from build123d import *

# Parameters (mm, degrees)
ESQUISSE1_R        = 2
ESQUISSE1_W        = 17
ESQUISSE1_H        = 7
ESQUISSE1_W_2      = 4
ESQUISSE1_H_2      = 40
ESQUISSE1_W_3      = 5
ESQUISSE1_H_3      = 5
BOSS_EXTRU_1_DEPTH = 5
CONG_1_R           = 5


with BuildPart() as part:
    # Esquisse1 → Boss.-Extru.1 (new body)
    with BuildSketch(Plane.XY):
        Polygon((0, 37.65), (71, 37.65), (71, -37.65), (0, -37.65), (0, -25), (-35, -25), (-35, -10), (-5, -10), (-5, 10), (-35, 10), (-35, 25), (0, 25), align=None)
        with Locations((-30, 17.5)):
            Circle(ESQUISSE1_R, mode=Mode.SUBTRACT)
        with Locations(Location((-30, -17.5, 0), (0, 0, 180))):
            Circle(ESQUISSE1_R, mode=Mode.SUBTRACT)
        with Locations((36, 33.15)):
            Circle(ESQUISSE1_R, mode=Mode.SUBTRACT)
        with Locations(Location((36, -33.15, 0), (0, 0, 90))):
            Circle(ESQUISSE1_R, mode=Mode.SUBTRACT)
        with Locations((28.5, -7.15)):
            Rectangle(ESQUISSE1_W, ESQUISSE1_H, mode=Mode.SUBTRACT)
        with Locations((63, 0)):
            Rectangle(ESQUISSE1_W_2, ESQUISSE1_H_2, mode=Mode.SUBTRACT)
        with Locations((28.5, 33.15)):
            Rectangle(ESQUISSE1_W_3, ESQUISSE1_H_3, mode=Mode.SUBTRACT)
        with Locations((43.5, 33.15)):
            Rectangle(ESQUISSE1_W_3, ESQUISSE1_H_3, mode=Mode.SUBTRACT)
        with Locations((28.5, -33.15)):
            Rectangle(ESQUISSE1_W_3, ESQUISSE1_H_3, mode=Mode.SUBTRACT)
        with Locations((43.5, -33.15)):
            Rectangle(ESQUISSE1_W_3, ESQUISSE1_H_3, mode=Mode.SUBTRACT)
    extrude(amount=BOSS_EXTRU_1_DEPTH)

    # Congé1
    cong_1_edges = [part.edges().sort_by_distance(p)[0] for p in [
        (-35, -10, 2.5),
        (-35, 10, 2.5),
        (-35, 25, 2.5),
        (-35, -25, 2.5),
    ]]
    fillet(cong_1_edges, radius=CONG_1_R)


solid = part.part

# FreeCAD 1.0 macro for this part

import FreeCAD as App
import Part
import Sketcher
Q = App.Units.Quantity


def edges_at(feature, points):
    """Names of the edges that pass closest to the given points."""
    edges = feature.Shape.Edges
    near = lambda p: min(range(len(edges)), key=lambda i: edges[i].distToShape(Part.Vertex(*p))[0])
    return sorted({f"Edge{near(p) + 1}" for p in points})

doc = App.newDocument("Part")
body = doc.addObject("PartDesign::Body", "Body")

# Sketch on XY plane
sketch1 = body.newObject("Sketcher::SketchObject", "Sketch")
sketch1.AttachmentSupport = (doc.getObject("XY_Plane"), [""])
sketch1.MapMode = "FlatFace"
sketch1.addGeometry([
    Part.LineSegment(App.Vector(71, 37.6, 0), App.Vector(0, 37.6, 0)),  # 0
    Part.LineSegment(App.Vector(0, 37.6, 0), App.Vector(0, 25, 0)),  # 1
    Part.LineSegment(App.Vector(0, 25, 0), App.Vector(-35, 25, 0)),  # 2
    Part.LineSegment(App.Vector(-35, 25, 0), App.Vector(-35, 10, 0)),  # 3
    Part.LineSegment(App.Vector(-35, 10, 0), App.Vector(-5, 10, 0)),  # 4
    Part.LineSegment(App.Vector(-5, 10, 0), App.Vector(-5, -10, 0)),  # 5
    Part.LineSegment(App.Vector(-5, -10, 0), App.Vector(-35, -10, 0)),  # 6
    Part.LineSegment(App.Vector(-35, -10, 0), App.Vector(-35, -25, 0)),  # 7
    Part.LineSegment(App.Vector(-35, -25, 0), App.Vector(0, -25, 0)),  # 8
    Part.LineSegment(App.Vector(0, -25, 0), App.Vector(0, -37.6, 0)),  # 9
    Part.LineSegment(App.Vector(0, -37.6, 0), App.Vector(71, -37.6, 0)),  # 10
    Part.LineSegment(App.Vector(71, -37.6, 0), App.Vector(71, 37.6, 0)),  # 11
    Part.LineSegment(App.Vector(41, -35.6, 0), App.Vector(41, -30.6, 0)),  # 12
    Part.LineSegment(App.Vector(41, -30.6, 0), App.Vector(46, -30.6, 0)),  # 13
    Part.LineSegment(App.Vector(46, -30.6, 0), App.Vector(46, -35.6, 0)),  # 14
    Part.LineSegment(App.Vector(46, -35.6, 0), App.Vector(41, -35.6, 0)),  # 15
    Part.Circle(App.Vector(36, -33.1, 0), App.Vector(0, 0, 1), 2),  # 16
    Part.LineSegment(App.Vector(26, -35.6, 0), App.Vector(26, -30.6, 0)),  # 17
    Part.LineSegment(App.Vector(26, -30.6, 0), App.Vector(31, -30.6, 0)),  # 18
    Part.LineSegment(App.Vector(31, -30.6, 0), App.Vector(31, -35.6, 0)),  # 19
    Part.LineSegment(App.Vector(31, -35.6, 0), App.Vector(26, -35.6, 0)),  # 20
    Part.LineSegment(App.Vector(20, -10.7, 0), App.Vector(20, -3.6, 0)),  # 21
    Part.LineSegment(App.Vector(20, -3.6, 0), App.Vector(37, -3.6, 0)),  # 22
    Part.LineSegment(App.Vector(37, -3.6, 0), App.Vector(37, -10.7, 0)),  # 23
    Part.LineSegment(App.Vector(37, -10.7, 0), App.Vector(20, -10.7, 0)),  # 24
    Part.Circle(App.Vector(-30, -17.5, 0), App.Vector(0, 0, 1), 2),  # 25
    Part.LineSegment(App.Vector(61, -20, 0), App.Vector(61, 20, 0)),  # 26
    Part.LineSegment(App.Vector(61, 20, 0), App.Vector(65, 20, 0)),  # 27
    Part.LineSegment(App.Vector(65, 20, 0), App.Vector(65, -20, 0)),  # 28
    Part.LineSegment(App.Vector(65, -20, 0), App.Vector(61, -20, 0)),  # 29
    Part.LineSegment(App.Vector(41, 30.6, 0), App.Vector(41, 35.6, 0)),  # 30
    Part.LineSegment(App.Vector(41, 35.6, 0), App.Vector(46, 35.6, 0)),  # 31
    Part.LineSegment(App.Vector(46, 35.6, 0), App.Vector(46, 30.6, 0)),  # 32
    Part.LineSegment(App.Vector(46, 30.6, 0), App.Vector(41, 30.6, 0)),  # 33
    Part.Circle(App.Vector(36, 33.1, 0), App.Vector(0, 0, 1), 2),  # 34
    Part.LineSegment(App.Vector(26, 30.6, 0), App.Vector(26, 35.6, 0)),  # 35
    Part.LineSegment(App.Vector(26, 35.6, 0), App.Vector(31, 35.6, 0)),  # 36
    Part.LineSegment(App.Vector(31, 35.6, 0), App.Vector(31, 30.6, 0)),  # 37
    Part.LineSegment(App.Vector(31, 30.6, 0), App.Vector(26, 30.6, 0)),  # 38
    Part.Circle(App.Vector(-30, 17.5, 0), App.Vector(0, 0, 1), 2),  # 39
], False)
sketch1.addConstraint([
    Sketcher.Constraint("Coincident", 0, 2, 1, 1),
    Sketcher.Constraint("Coincident", 1, 2, 2, 1),
    Sketcher.Constraint("Coincident", 2, 2, 3, 1),
    Sketcher.Constraint("Coincident", 3, 2, 4, 1),
    Sketcher.Constraint("Coincident", 4, 2, 5, 1),
    Sketcher.Constraint("Coincident", 5, 2, 6, 1),
    Sketcher.Constraint("Coincident", 6, 2, 7, 1),
    Sketcher.Constraint("Coincident", 7, 2, 8, 1),
    Sketcher.Constraint("Coincident", 8, 2, 9, 1),
    Sketcher.Constraint("Coincident", 9, 2, 10, 1),
    Sketcher.Constraint("Coincident", 10, 2, 11, 1),
    Sketcher.Constraint("Coincident", 11, 2, 0, 1),
    Sketcher.Constraint("Coincident", 12, 2, 13, 1),
    Sketcher.Constraint("Coincident", 13, 2, 14, 1),
    Sketcher.Constraint("Coincident", 14, 2, 15, 1),
    Sketcher.Constraint("Coincident", 15, 2, 12, 1),
    Sketcher.Constraint("Coincident", 17, 2, 18, 1),
    Sketcher.Constraint("Coincident", 18, 2, 19, 1),
    Sketcher.Constraint("Coincident", 19, 2, 20, 1),
    Sketcher.Constraint("Coincident", 20, 2, 17, 1),
    Sketcher.Constraint("Coincident", 21, 2, 22, 1),
    Sketcher.Constraint("Coincident", 22, 2, 23, 1),
    Sketcher.Constraint("Coincident", 23, 2, 24, 1),
    Sketcher.Constraint("Coincident", 24, 2, 21, 1),
    Sketcher.Constraint("Coincident", 26, 2, 27, 1),
    Sketcher.Constraint("Coincident", 27, 2, 28, 1),
    Sketcher.Constraint("Coincident", 28, 2, 29, 1),
    Sketcher.Constraint("Coincident", 29, 2, 26, 1),
    Sketcher.Constraint("Coincident", 30, 2, 31, 1),
    Sketcher.Constraint("Coincident", 31, 2, 32, 1),
    Sketcher.Constraint("Coincident", 32, 2, 33, 1),
    Sketcher.Constraint("Coincident", 33, 2, 30, 1),
    Sketcher.Constraint("Coincident", 35, 2, 36, 1),
    Sketcher.Constraint("Coincident", 36, 2, 37, 1),
    Sketcher.Constraint("Coincident", 37, 2, 38, 1),
    Sketcher.Constraint("Coincident", 38, 2, 35, 1),
    Sketcher.Constraint("Horizontal", 0),
    Sketcher.Constraint("Vertical", 1),
    Sketcher.Constraint("Horizontal", 2),
    Sketcher.Constraint("Vertical", 3),
    Sketcher.Constraint("Horizontal", 4),
    Sketcher.Constraint("Vertical", 5),
    Sketcher.Constraint("Horizontal", 6),
    Sketcher.Constraint("Vertical", 7),
    Sketcher.Constraint("Horizontal", 8),
    Sketcher.Constraint("Vertical", 9),
    Sketcher.Constraint("Horizontal", 10),
    Sketcher.Constraint("Vertical", 11),
    Sketcher.Constraint("Vertical", 12),
    Sketcher.Constraint("Horizontal", 13),
    Sketcher.Constraint("Vertical", 14),
    Sketcher.Constraint("Horizontal", 15),
    Sketcher.Constraint("Vertical", 17),
    Sketcher.Constraint("Horizontal", 18),
    Sketcher.Constraint("Vertical", 19),
    Sketcher.Constraint("Horizontal", 20),
    Sketcher.Constraint("Vertical", 21),
    Sketcher.Constraint("Horizontal", 22),
    Sketcher.Constraint("Vertical", 23),
    Sketcher.Constraint("Horizontal", 24),
    Sketcher.Constraint("Vertical", 26),
    Sketcher.Constraint("Horizontal", 27),
    Sketcher.Constraint("Vertical", 28),
    Sketcher.Constraint("Horizontal", 29),
    Sketcher.Constraint("Vertical", 30),
    Sketcher.Constraint("Horizontal", 31),
    Sketcher.Constraint("Vertical", 32),
    Sketcher.Constraint("Horizontal", 33),
    Sketcher.Constraint("Vertical", 35),
    Sketcher.Constraint("Horizontal", 36),
    Sketcher.Constraint("Vertical", 37),
    Sketcher.Constraint("Horizontal", 38),
    Sketcher.Constraint("Equal", 16, 25),
    Sketcher.Constraint("Equal", 25, 34),
    Sketcher.Constraint("Equal", 34, 39),
    Sketcher.Constraint("Symmetric", 1, 2, 8, 2, -1, 1),
    Sketcher.Constraint("Symmetric", 16, 3, 34, 3, -1),
    Sketcher.Constraint("Symmetric", 25, 3, 39, 3, -1),
    Sketcher.Constraint("Symmetric", 3, 2, 6, 2, -1),
    Sketcher.Constraint("Symmetric", 0, 2, 9, 2, -1),
    Sketcher.Constraint("Symmetric", 15, 2, 30, 2, -1),
    Sketcher.Constraint("Symmetric", 13, 2, 32, 2, -1),
    Sketcher.Constraint("Symmetric", 20, 2, 35, 2, -1),
    Sketcher.Constraint("Symmetric", 18, 2, 37, 2, -1),
    Sketcher.Constraint("Horizontal", 13, 2, 17, 2),
    Sketcher.Constraint("Horizontal", 15, 2, 19, 2),
    Sketcher.Constraint("Equal", 15, 18),
    Sketcher.Constraint("Equal", 38, 12),
    Sketcher.Constraint("Diameter", 16, Q("4 mm")),
    Sketcher.Constraint("DistanceX", 0, 2, 0, 1, Q("71 mm")),
    Sketcher.Constraint("DistanceX", 2, 2, 2, 1, Q("35 mm")),
    Sketcher.Constraint("DistanceX", 4, 1, 4, 2, Q("30 mm")),
    Sketcher.Constraint("DistanceX", 13, 1, 13, 2, Q("5 mm")),
    Sketcher.Constraint("DistanceX", 22, 1, 22, 2, Q("17 mm")),
    Sketcher.Constraint("DistanceX", 27, 1, 27, 2, Q("4 mm")),
    Sketcher.Constraint("DistanceY", 3, 2, 3, 1, Q("15 mm")),
    Sketcher.Constraint("DistanceY", 5, 2, 5, 1, Q("20 mm")),
    Sketcher.Constraint("DistanceY", 21, 1, 21, 2, Q("7 mm")),
    Sketcher.Constraint("DistanceY", 26, 1, 26, 2, Q("40 mm")),
    Sketcher.Constraint("DistanceY", 11, 1, 11, 2, Q("75.3 mm")),
    Sketcher.Constraint("DistanceX", -1, 1, 16, 3, Q("36 mm")),
    Sketcher.Constraint("DistanceX", 25, 3, -1, 1, Q("30 mm")),
    Sketcher.Constraint("DistanceX", -1, 1, 12, 2, Q("41 mm")),
    Sketcher.Constraint("DistanceX", -1, 1, 17, 2, Q("26 mm")),
    Sketcher.Constraint("DistanceX", -1, 1, 21, 2, Q("20 mm")),
    Sketcher.Constraint("DistanceX", -1, 1, 26, 2, Q("61 mm")),
    Sketcher.Constraint("DistanceY", -1, 1, 26, 2, Q("20 mm")),
    Sketcher.Constraint("DistanceY", 25, 3, 39, 3, Q("35 mm")),
    Sketcher.Constraint("DistanceY", 10, 2, 12, 2, Q("7 mm")),
    Sketcher.Constraint("DistanceY", 17, 2, 21, 2, Q("27 mm")),
    Sketcher.Constraint("DistanceY", 16, 3, 34, 3, Q("66.3 mm")),
])
pad1 = body.newObject("PartDesign::Pad", "Pad")
pad1.Profile = sketch1
pad1.Length = 5
doc.recompute()

fillet = body.newObject("PartDesign::Fillet", "Fillet")
fillet.Base = (pad1, edges_at(pad1, [
    (-35, -10, 2.5),
    (-35, 10, 2.5),
    (-35, 25, 2.5),
    (-35, -25, 2.5),
]))
fillet.Radius = 5

doc.recompute()
